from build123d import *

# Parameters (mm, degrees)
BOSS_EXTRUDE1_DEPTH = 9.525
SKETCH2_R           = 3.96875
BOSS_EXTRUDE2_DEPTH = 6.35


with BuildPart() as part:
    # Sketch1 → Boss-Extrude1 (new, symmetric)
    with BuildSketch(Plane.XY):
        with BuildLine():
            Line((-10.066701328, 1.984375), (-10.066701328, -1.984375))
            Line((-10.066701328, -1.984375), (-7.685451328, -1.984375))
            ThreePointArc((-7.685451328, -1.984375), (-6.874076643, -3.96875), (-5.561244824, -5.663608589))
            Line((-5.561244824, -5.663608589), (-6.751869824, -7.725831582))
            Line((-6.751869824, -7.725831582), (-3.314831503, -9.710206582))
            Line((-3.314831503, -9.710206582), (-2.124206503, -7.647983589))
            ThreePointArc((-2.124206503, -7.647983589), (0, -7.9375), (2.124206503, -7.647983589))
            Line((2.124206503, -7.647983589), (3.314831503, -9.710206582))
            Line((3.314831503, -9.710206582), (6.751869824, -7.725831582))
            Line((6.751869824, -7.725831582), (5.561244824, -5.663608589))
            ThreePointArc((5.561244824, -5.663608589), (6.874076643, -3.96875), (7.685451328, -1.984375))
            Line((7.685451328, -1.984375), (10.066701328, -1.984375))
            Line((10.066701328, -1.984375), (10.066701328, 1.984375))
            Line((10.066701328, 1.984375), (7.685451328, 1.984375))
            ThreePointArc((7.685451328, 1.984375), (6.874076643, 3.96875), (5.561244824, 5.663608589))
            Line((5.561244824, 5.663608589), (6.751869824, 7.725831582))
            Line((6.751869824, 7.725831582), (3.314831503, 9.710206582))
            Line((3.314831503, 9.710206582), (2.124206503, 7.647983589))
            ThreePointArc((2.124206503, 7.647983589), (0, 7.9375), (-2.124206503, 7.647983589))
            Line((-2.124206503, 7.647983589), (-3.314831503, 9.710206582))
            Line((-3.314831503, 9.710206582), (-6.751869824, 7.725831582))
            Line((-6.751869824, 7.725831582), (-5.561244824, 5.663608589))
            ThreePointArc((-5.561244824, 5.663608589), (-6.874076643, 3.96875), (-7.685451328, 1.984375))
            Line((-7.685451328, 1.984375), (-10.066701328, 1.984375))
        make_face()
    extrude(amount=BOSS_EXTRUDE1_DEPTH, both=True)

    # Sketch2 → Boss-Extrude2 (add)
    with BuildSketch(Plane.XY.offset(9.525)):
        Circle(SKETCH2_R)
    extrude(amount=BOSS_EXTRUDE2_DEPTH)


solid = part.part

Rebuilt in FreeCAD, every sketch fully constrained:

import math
import FreeCAD as App
import Part
import Sketcher
from FreeCAD import Vector
Q = App.Units.Quantity

doc = App.newDocument("Part")
body = doc.addObject("PartDesign::Body", "Body")

# Sketch on XY plane
sketch1 = body.newObject("Sketcher::SketchObject", "Sketch")
sketch1.AttachmentSupport = (doc.getObject("XY_Plane"), [""])
sketch1.MapMode = "FlatFace"
sketch1.addGeometry(Part.LineSegment(Vector(-10.066701, 1.984375, 0), Vector(-10.066701, -1.984375, 0)), False)
sketch1.addGeometry(Part.LineSegment(Vector(-10.066701, -1.984375, 0), Vector(-7.685451, -1.984375, 0)), False)
sketch1.addGeometry(Part.ArcOfCircle(Part.Circle(Vector(0, 0, 0), Vector(0, 0, 1), 7.9375), math.radians(-165.522488), math.radians(-134.477512)), False)
sketch1.addGeometry(Part.LineSegment(Vector(-5.561245, -5.663609, 0), Vector(-6.75187, -7.725832, 0)), False)
sketch1.addGeometry(Part.LineSegment(Vector(-6.75187, -7.725832, 0), Vector(-3.314832, -9.710207, 0)), False)
sketch1.addGeometry(Part.LineSegment(Vector(-3.314832, -9.710207, 0), Vector(-2.124207, -7.647984, 0)), False)
sketch1.addGeometry(Part.ArcOfCircle(Part.Circle(Vector(0, 0, 0), Vector(0, 0, 1), 7.9375), math.radians(-105.522488), math.radians(-74.477512)), False)
sketch1.addGeometry(Part.LineSegment(Vector(2.124207, -7.647984, 0), Vector(3.314832, -9.710207, 0)), False)
sketch1.addGeometry(Part.LineSegment(Vector(3.314832, -9.710207, 0), Vector(6.75187, -7.725832, 0)), False)
sketch1.addGeometry(Part.LineSegment(Vector(6.75187, -7.725832, 0), Vector(5.561245, -5.663609, 0)), False)
sketch1.addGeometry(Part.ArcOfCircle(Part.Circle(Vector(0, 0, 0), Vector(0, 0, 1), 7.9375), math.radians(-45.522488), math.radians(-14.477512)), False)
sketch1.addGeometry(Part.LineSegment(Vector(7.685451, -1.984375, 0), Vector(10.066701, -1.984375, 0)), False)
sketch1.addGeometry(Part.LineSegment(Vector(10.066701, -1.984375, 0), Vector(10.066701, 1.984375, 0)), False)
sketch1.addGeometry(Part.LineSegment(Vector(10.066701, 1.984375, 0), Vector(7.685451, 1.984375, 0)), False)
sketch1.addGeometry(Part.ArcOfCircle(Part.Circle(Vector(0, 0, 0), Vector(0, 0, 1), 7.9375), math.radians(14.477512), math.radians(45.522488)), False)
sketch1.addGeometry(Part.LineSegment(Vector(5.561245, 5.663609, 0), Vector(6.75187, 7.725832, 0)), False)
sketch1.addGeometry(Part.LineSegment(Vector(6.75187, 7.725832, 0), Vector(3.314832, 9.710207, 0)), False)
sketch1.addGeometry(Part.LineSegment(Vector(3.314832, 9.710207, 0), Vector(2.124207, 7.647984, 0)), False)
sketch1.addGeometry(Part.ArcOfCircle(Part.Circle(Vector(0, 0, 0), Vector(0, 0, 1), 7.9375), math.radians(74.477512), math.radians(105.522488)), False)
sketch1.addGeometry(Part.LineSegment(Vector(-2.124207, 7.647984, 0), Vector(-3.314832, 9.710207, 0)), False)
sketch1.addGeometry(Part.LineSegment(Vector(-3.314832, 9.710207, 0), Vector(-6.75187, 7.725832, 0)), False)
sketch1.addGeometry(Part.LineSegment(Vector(-6.75187, 7.725832, 0), Vector(-5.561245, 5.663609, 0)), False)
sketch1.addGeometry(Part.ArcOfCircle(Part.Circle(Vector(0, 0, 0), Vector(0, 0, 1), 7.9375), math.radians(134.477512), math.radians(165.522488)), False)
sketch1.addGeometry(Part.LineSegment(Vector(-7.685451, 1.984375, 0), Vector(-10.066701, 1.984375, 0)), False)
sketch1.addConstraint(Sketcher.Constraint("Coincident", 0, 2, 1, 1))
sketch1.addConstraint(Sketcher.Constraint("Coincident", 1, 2, 2, 1))
sketch1.addConstraint(Sketcher.Constraint("Coincident", 2, 2, 3, 1))
sketch1.addConstraint(Sketcher.Constraint("Coincident", 3, 2, 4, 1))
sketch1.addConstraint(Sketcher.Constraint("Coincident", 4, 2, 5, 1))
sketch1.addConstraint(Sketcher.Constraint("Coincident", 5, 2, 6, 1))
sketch1.addConstraint(Sketcher.Constraint("Coincident", 6, 2, 7, 1))
sketch1.addConstraint(Sketcher.Constraint("Coincident", 7, 2, 8, 1))
sketch1.addConstraint(Sketcher.Constraint("Coincident", 8, 2, 9, 1))
sketch1.addConstraint(Sketcher.Constraint("Coincident", 9, 2, 10, 1))
sketch1.addConstraint(Sketcher.Constraint("Coincident", 10, 2, 11, 1))
sketch1.addConstraint(Sketcher.Constraint("Coincident", 11, 2, 12, 1))
sketch1.addConstraint(Sketcher.Constraint("Coincident", 12, 2, 13, 1))
sketch1.addConstraint(Sketcher.Constraint("Coincident", 13, 2, 14, 1))
sketch1.addConstraint(Sketcher.Constraint("Coincident", 14, 2, 15, 1))
sketch1.addConstraint(Sketcher.Constraint("Coincident", 15, 2, 16, 1))
sketch1.addConstraint(Sketcher.Constraint("Coincident", 16, 2, 17, 1))
sketch1.addConstraint(Sketcher.Constraint("Coincident", 17, 2, 18, 1))
sketch1.addConstraint(Sketcher.Constraint("Coincident", 18, 2, 19, 1))
sketch1.addConstraint(Sketcher.Constraint("Coincident", 19, 2, 20, 1))
sketch1.addConstraint(Sketcher.Constraint("Coincident", 20, 2, 21, 1))
sketch1.addConstraint(Sketcher.Constraint("Coincident", 21, 2, 22, 1))
sketch1.addConstraint(Sketcher.Constraint("Coincident", 22, 2, 23, 1))
sketch1.addConstraint(Sketcher.Constraint("Coincident", 23, 2, 0, 1))
sketch1.addConstraint(Sketcher.Constraint("Vertical", 0))
sketch1.addConstraint(Sketcher.Constraint("Horizontal", 1))
sketch1.addConstraint(Sketcher.Constraint("Horizontal", 11))
sketch1.addConstraint(Sketcher.Constraint("Vertical", 12))
sketch1.addConstraint(Sketcher.Constraint("Horizontal", 13))
sketch1.addConstraint(Sketcher.Constraint("Horizontal", 23))
sketch1.addConstraint(Sketcher.Constraint("Coincident", 2, 3, -1, 1))
sketch1.addConstraint(Sketcher.Constraint("Coincident", 6, 3, -1, 1))
sketch1.addConstraint(Sketcher.Constraint("Coincident", 10, 3, -1, 1))
sketch1.addConstraint(Sketcher.Constraint("Coincident", 14, 3, -1, 1))
sketch1.addConstraint(Sketcher.Constraint("Coincident", 18, 3, -1, 1))
sketch1.addConstraint(Sketcher.Constraint("Coincident", 22, 3, -1, 1))
sketch1.addConstraint(Sketcher.Constraint("Equal", 2, 6))
sketch1.addConstraint(Sketcher.Constraint("Equal", 6, 10))
sketch1.addConstraint(Sketcher.Constraint("Equal", 10, 14))
sketch1.addConstraint(Sketcher.Constraint("Equal", 14, 18))
sketch1.addConstraint(Sketcher.Constraint("Equal", 18, 22))
sketch1.addConstraint(Sketcher.Constraint("Symmetric", 0, 2, 12, 2, -1, 1))
sketch1.addConstraint(Sketcher.Constraint("Symmetric", 3, 2, 15, 2, -1, 1))
sketch1.addConstraint(Sketcher.Constraint("Symmetric", 4, 2, 16, 2, -1, 1))
sketch1.addConstraint(Sketcher.Constraint("Symmetric", 7, 2, 19, 2, -1, 1))
sketch1.addConstraint(Sketcher.Constraint("Symmetric", 8, 2, 20, 2, -1, 1))
sketch1.addConstraint(Sketcher.Constraint("Symmetric", 4, 2, 7, 2, -2))
sketch1.addConstraint(Sketcher.Constraint("Symmetric", 3, 2, 8, 2, -2))
sketch1.addConstraint(Sketcher.Constraint("Perpendicular", 3, 4))
sketch1.addConstraint(Sketcher.Constraint("Perpendicular", 4, 5))
sketch1.addConstraint(Sketcher.Constraint("Perpendicular", 7, 8))
sketch1.addConstraint(Sketcher.Constraint("Perpendicular", 8, 9))
sketch1.addConstraint(Sketcher.Constraint("Parallel", 5, 15))
sketch1.addConstraint(Sketcher.Constraint("Perpendicular", 16, 17))
sketch1.addConstraint(Sketcher.Constraint("Parallel", 9, 19))
sketch1.addConstraint(Sketcher.Constraint("Perpendicular", 20, 21))
sketch1.addConstraint(Sketcher.Constraint("Horizontal", 1, 2, 10, 2))
sketch1.addConstraint(Sketcher.Constraint("Horizontal", 13, 2, 22, 2))
sketch1.addConstraint(Sketcher.Constraint("Equal", 3, 5))
sketch1.addConstraint(Sketcher.Constraint("Angle", 3, Q("-120 deg")))
sketch1.addConstraint(Sketcher.Constraint("Radius", 2, Q("0.3125 in")))
sketch1.addConstraint(Sketcher.Constraint("DistanceX", 1, 1, 1, 2, Q("0.09375 in")))
sketch1.addConstraint(Sketcher.Constraint("DistanceY", 0, 2, 0, 1, Q("0.15625 in")))
sketch1.addConstraint(Sketcher.Constraint("Distance", 3, Q("0.09375 in")))
sketch1.addConstraint(Sketcher.Constraint("Distance", 4, Q("0.15625 in")))
pad1 = body.newObject("PartDesign::Pad", "Pad")
pad1.Profile = sketch1
pad1.Length = Q("0.75 in")
pad1.Midplane = True

# Sketch on XY plane
sketch2 = body.newObject("Sketcher::SketchObject", "Sketch001")
sketch2.AttachmentSupport = (doc.getObject("XY_Plane"), [""])
sketch2.MapMode = "FlatFace"
sketch2.AttachmentOffset = App.Placement(Vector(0, 0, 0.375 * 25.4), App.Rotation())
sketch2.addGeometry(Part.Circle(Vector(0, 0, 0), Vector(0, 0, 1), 3.96875), False)
sketch2.addConstraint(Sketcher.Constraint("Coincident", 0, 3, -1, 1))
sketch2.addConstraint(Sketcher.Constraint("Diameter", 0, Q("0.3125 in")))
pad2 = body.newObject("PartDesign::Pad", "Pad001")
pad2.Profile = sketch2
pad2.Length = Q("0.25 in")

doc.recompute()
